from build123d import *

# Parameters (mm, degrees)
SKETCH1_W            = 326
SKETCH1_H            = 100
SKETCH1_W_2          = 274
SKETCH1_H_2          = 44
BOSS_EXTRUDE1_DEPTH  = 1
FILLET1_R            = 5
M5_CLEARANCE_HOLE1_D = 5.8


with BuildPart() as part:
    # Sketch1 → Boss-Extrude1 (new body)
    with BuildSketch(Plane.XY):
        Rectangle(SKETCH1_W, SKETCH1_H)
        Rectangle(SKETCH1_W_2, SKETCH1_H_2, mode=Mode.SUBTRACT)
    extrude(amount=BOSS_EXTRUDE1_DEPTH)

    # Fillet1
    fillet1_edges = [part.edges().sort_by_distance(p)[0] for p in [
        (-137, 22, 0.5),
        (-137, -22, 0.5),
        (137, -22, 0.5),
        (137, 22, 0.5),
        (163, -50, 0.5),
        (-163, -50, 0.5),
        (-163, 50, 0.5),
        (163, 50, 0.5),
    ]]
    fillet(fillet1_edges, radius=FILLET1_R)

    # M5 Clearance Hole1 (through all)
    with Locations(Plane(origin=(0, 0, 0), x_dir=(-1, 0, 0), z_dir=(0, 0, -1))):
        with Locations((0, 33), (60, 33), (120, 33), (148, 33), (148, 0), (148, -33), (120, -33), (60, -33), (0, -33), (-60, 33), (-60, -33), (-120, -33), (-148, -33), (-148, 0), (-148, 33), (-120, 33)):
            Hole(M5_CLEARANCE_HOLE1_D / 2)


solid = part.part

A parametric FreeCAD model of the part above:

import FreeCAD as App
import Part
import Sketcher


def edges_at(feature, points):
    """Names of the edges that pass closest to the given points."""
    edges = feature.Shape.Edges
    near = lambda p: min(range(len(edges)), key=lambda i: edges[i].distToShape(Part.Vertex(*p))[0])
    return sorted({f"Edge{near(p) + 1}" for p in points})


def add_polygon(sketch, points):
    """Adds a closed chain of lines whose ends are joined by coincident constraints."""
    first, n = sketch.GeometryCount, len(points)
    for a, b in zip(points, points[1:] + points[:1]):
        sketch.addGeometry(Part.LineSegment(App.Vector(*a, 0), App.Vector(*b, 0)), False)
    for i in range(n):
        sketch.addConstraint(Sketcher.Constraint("Coincident", first + i, 2, first + (i + 1) % n, 1))

doc = App.newDocument("Part")
body = doc.addObject("PartDesign::Body", "Body")

sketch1 = body.newObject("Sketcher::SketchObject", "Sketch")
sketch1.AttachmentSupport = (doc.getObject("XY_Plane"), [""])
sketch1.MapMode = "FlatFace"
add_polygon(sketch1, [(-163, 50), (-163, -50), (163, -50), (163, 50)])
add_polygon(sketch1, [(137, -22), (-137, -22), (-137, 22), (137, 22)])
sketch1.addConstraint(Sketcher.Constraint("Vertical", 0))
sketch1.addConstraint(Sketcher.Constraint("Horizontal", 1))
sketch1.addConstraint(Sketcher.Constraint("Vertical", 2))
sketch1.addConstraint(Sketcher.Constraint("Horizontal", 3))
sketch1.addConstraint(Sketcher.Constraint("Horizontal", 4))
sketch1.addConstraint(Sketcher.Constraint("Vertical", 5))
sketch1.addConstraint(Sketcher.Constraint("Horizontal", 6))
sketch1.addConstraint(Sketcher.Constraint("Vertical", 7))
sketch1.addConstraint(Sketcher.Constraint("Symmetric", 0, 2, 2, 2, -1, 1))
sketch1.addConstraint(Sketcher.Constraint("Symmetric", 4, 2, 6, 2, -1, 1))
sketch1.addConstraint(Sketcher.Constraint("DistanceX", 1, 1, 1, 2, 326.0))
sketch1.addConstraint(Sketcher.Constraint("DistanceX", 4, 2, 4, 1, 274.0))
sketch1.addConstraint(Sketcher.Constraint("DistanceY", 0, 2, 0, 1, 100.0))
sketch1.addConstraint(Sketcher.Constraint("DistanceY", 5, 1, 5, 2, 44.0))
pad1 = body.newObject("PartDesign::Pad", "Pad")
pad1.Profile = sketch1
pad1.Length = 1
doc.recompute()

fillet = body.newObject("PartDesign::Fillet", "Fillet")
fillet.Base = (pad1, edges_at(pad1, [
    (-137, 22, 0.5),
    (-137, -22, 0.5),
    (137, -22, 0.5),
    (137, 22, 0.5),
    (163, -50, 0.5),
    (-163, -50, 0.5),
    (-163, 50, 0.5),
    (163, 50, 0.5),
]))
fillet.Radius = 5

sketch2 = body.newObject("Sketcher::SketchObject", "Sketch001")
sketch2.AttachmentSupport = (doc.getObject("XY_Plane"), [""])
sketch2.MapMode = "FlatFace"
sketch2.addGeometry(Part.Circle(App.Vector(0, 33, 0), App.Vector(0, 0, 1), 2.9), False)
sketch2.addGeometry(Part.Circle(App.Vector(-60, 33, 0), App.Vector(0, 0, 1), 2.9), False)
sketch2.addGeometry(Part.Circle(App.Vector(-120, 33, 0), App.Vector(0, 0, 1), 2.9), False)
sketch2.addGeometry(Part.Circle(App.Vector(-148, 33, 0), App.Vector(0, 0, 1), 2.9), False)
sketch2.addGeometry(Part.Circle(App.Vector(-148, 0, 0), App.Vector(0, 0, 1), 2.9), False)
sketch2.addGeometry(Part.Circle(App.Vector(-148, -33, 0), App.Vector(0, 0, 1), 2.9), False)
sketch2.addGeometry(Part.Circle(App.Vector(-120, -33, 0), App.Vector(0, 0, 1), 2.9), False)
sketch2.addGeometry(Part.Circle(App.Vector(-60, -33, 0), App.Vector(0, 0, 1), 2.9), False)
sketch2.addGeometry(Part.Circle(App.Vector(0, -33, 0), App.Vector(0, 0, 1), 2.9), False)
sketch2.addGeometry(Part.Circle(App.Vector(60, 33, 0), App.Vector(0, 0, 1), 2.9), False)
sketch2.addGeometry(Part.Circle(App.Vector(60, -33, 0), App.Vector(0, 0, 1), 2.9), False)
sketch2.addGeometry(Part.Circle(App.Vector(120, -33, 0), App.Vector(0, 0, 1), 2.9), False)
sketch2.addGeometry(Part.Circle(App.Vector(148, -33, 0), App.Vector(0, 0, 1), 2.9), False)
sketch2.addGeometry(Part.Circle(App.Vector(148, 0, 0), App.Vector(0, 0, 1), 2.9), False)
sketch2.addGeometry(Part.Circle(App.Vector(148, 33, 0), App.Vector(0, 0, 1), 2.9), False)
sketch2.addGeometry(Part.Circle(App.Vector(120, 33, 0), App.Vector(0, 0, 1), 2.9), False)
sketch2.addConstraint(Sketcher.Constraint("Equal", 0, 1))
sketch2.addConstraint(Sketcher.Constraint("Equal", 1, 2))
sketch2.addConstraint(Sketcher.Constraint("Equal", 2, 3))
sketch2.addConstraint(Sketcher.Constraint("Equal", 3, 4))
sketch2.addConstraint(Sketcher.Constraint("Equal", 4, 5))
sketch2.addConstraint(Sketcher.Constraint("Equal", 5, 6))
sketch2.addConstraint(Sketcher.Constraint("Equal", 6, 7))
sketch2.addConstraint(Sketcher.Constraint("Equal", 7, 8))
sketch2.addConstraint(Sketcher.Constraint("Equal", 8, 9))
sketch2.addConstraint(Sketcher.Constraint("Equal", 9, 10))
sketch2.addConstraint(Sketcher.Constraint("Equal", 10, 11))
sketch2.addConstraint(Sketcher.Constraint("Equal", 11, 12))
sketch2.addConstraint(Sketcher.Constraint("Equal", 12, 13))
sketch2.addConstraint(Sketcher.Constraint("Equal", 13, 14))
sketch2.addConstraint(Sketcher.Constraint("Equal", 14, 15))
sketch2.addConstraint(Sketcher.Constraint("Symmetric", 0, 3, 8, 3, -1, 1))
sketch2.addConstraint(Sketcher.Constraint("Symmetric", 7, 3, 9, 3, -1, 1))
sketch2.addConstraint(Sketcher.Constraint("Symmetric", 1, 3, 10, 3, -1, 1))
sketch2.addConstraint(Sketcher.Constraint("Symmetric", 2, 3, 11, 3, -1, 1))
sketch2.addConstraint(Sketcher.Constraint("Symmetric", 3, 3, 12, 3, -1, 1))
sketch2.addConstraint(Sketcher.Constraint("Symmetric", 4, 3, 13, 3, -1, 1))
sketch2.addConstraint(Sketcher.Constraint("Symmetric", 5, 3, 14, 3, -1, 1))
sketch2.addConstraint(Sketcher.Constraint("Symmetric", 6, 3, 15, 3, -1, 1))
sketch2.addConstraint(Sketcher.Constraint("Symmetric", 1, 3, 9, 3, -2))
sketch2.addConstraint(Sketcher.Constraint("Symmetric", 6, 3, 11, 3, -2))
sketch2.addConstraint(Sketcher.Constraint("Symmetric", 5, 3, 12, 3, -2))
sketch2.addConstraint(Sketcher.Constraint("PointOnObject", 0, 3, -2))
sketch2.addConstraint(Sketcher.Constraint("PointOnObject", 4, 3, -1))
sketch2.addConstraint(Sketcher.Constraint("Horizontal", 0, 3, 1, 3))
sketch2.addConstraint(Sketcher.Constraint("Horizontal", 1, 3, 2, 3))
sketch2.addConstraint(Sketcher.Constraint("Horizontal", 2, 3, 3, 3))
sketch2.addConstraint(Sketcher.Constraint("Vertical", 3, 3, 4, 3))
sketch2.addConstraint(Sketcher.Constraint("Diameter", 0, 5.8))
sketch2.addConstraint(Sketcher.Constraint("DistanceY", -1, 1, 0, 3, 33.0))
sketch2.addConstraint(Sketcher.Constraint("DistanceX", 1, 3, -1, 1, 60.0))
sketch2.addConstraint(Sketcher.Constraint("DistanceX", 2, 3, -1, 1, 120.0))
sketch2.addConstraint(Sketcher.Constraint("DistanceX", 3, 3, -1, 1, 148.0))
doc.recompute()
hole = body.newObject("PartDesign::Hole", "Hole")
hole.Profile = sketch2
hole.ThreadType = "None"
hole.Diameter = 5.8
hole.DepthType = "ThroughAll"
hole.Reversed = True

doc.recompute()
